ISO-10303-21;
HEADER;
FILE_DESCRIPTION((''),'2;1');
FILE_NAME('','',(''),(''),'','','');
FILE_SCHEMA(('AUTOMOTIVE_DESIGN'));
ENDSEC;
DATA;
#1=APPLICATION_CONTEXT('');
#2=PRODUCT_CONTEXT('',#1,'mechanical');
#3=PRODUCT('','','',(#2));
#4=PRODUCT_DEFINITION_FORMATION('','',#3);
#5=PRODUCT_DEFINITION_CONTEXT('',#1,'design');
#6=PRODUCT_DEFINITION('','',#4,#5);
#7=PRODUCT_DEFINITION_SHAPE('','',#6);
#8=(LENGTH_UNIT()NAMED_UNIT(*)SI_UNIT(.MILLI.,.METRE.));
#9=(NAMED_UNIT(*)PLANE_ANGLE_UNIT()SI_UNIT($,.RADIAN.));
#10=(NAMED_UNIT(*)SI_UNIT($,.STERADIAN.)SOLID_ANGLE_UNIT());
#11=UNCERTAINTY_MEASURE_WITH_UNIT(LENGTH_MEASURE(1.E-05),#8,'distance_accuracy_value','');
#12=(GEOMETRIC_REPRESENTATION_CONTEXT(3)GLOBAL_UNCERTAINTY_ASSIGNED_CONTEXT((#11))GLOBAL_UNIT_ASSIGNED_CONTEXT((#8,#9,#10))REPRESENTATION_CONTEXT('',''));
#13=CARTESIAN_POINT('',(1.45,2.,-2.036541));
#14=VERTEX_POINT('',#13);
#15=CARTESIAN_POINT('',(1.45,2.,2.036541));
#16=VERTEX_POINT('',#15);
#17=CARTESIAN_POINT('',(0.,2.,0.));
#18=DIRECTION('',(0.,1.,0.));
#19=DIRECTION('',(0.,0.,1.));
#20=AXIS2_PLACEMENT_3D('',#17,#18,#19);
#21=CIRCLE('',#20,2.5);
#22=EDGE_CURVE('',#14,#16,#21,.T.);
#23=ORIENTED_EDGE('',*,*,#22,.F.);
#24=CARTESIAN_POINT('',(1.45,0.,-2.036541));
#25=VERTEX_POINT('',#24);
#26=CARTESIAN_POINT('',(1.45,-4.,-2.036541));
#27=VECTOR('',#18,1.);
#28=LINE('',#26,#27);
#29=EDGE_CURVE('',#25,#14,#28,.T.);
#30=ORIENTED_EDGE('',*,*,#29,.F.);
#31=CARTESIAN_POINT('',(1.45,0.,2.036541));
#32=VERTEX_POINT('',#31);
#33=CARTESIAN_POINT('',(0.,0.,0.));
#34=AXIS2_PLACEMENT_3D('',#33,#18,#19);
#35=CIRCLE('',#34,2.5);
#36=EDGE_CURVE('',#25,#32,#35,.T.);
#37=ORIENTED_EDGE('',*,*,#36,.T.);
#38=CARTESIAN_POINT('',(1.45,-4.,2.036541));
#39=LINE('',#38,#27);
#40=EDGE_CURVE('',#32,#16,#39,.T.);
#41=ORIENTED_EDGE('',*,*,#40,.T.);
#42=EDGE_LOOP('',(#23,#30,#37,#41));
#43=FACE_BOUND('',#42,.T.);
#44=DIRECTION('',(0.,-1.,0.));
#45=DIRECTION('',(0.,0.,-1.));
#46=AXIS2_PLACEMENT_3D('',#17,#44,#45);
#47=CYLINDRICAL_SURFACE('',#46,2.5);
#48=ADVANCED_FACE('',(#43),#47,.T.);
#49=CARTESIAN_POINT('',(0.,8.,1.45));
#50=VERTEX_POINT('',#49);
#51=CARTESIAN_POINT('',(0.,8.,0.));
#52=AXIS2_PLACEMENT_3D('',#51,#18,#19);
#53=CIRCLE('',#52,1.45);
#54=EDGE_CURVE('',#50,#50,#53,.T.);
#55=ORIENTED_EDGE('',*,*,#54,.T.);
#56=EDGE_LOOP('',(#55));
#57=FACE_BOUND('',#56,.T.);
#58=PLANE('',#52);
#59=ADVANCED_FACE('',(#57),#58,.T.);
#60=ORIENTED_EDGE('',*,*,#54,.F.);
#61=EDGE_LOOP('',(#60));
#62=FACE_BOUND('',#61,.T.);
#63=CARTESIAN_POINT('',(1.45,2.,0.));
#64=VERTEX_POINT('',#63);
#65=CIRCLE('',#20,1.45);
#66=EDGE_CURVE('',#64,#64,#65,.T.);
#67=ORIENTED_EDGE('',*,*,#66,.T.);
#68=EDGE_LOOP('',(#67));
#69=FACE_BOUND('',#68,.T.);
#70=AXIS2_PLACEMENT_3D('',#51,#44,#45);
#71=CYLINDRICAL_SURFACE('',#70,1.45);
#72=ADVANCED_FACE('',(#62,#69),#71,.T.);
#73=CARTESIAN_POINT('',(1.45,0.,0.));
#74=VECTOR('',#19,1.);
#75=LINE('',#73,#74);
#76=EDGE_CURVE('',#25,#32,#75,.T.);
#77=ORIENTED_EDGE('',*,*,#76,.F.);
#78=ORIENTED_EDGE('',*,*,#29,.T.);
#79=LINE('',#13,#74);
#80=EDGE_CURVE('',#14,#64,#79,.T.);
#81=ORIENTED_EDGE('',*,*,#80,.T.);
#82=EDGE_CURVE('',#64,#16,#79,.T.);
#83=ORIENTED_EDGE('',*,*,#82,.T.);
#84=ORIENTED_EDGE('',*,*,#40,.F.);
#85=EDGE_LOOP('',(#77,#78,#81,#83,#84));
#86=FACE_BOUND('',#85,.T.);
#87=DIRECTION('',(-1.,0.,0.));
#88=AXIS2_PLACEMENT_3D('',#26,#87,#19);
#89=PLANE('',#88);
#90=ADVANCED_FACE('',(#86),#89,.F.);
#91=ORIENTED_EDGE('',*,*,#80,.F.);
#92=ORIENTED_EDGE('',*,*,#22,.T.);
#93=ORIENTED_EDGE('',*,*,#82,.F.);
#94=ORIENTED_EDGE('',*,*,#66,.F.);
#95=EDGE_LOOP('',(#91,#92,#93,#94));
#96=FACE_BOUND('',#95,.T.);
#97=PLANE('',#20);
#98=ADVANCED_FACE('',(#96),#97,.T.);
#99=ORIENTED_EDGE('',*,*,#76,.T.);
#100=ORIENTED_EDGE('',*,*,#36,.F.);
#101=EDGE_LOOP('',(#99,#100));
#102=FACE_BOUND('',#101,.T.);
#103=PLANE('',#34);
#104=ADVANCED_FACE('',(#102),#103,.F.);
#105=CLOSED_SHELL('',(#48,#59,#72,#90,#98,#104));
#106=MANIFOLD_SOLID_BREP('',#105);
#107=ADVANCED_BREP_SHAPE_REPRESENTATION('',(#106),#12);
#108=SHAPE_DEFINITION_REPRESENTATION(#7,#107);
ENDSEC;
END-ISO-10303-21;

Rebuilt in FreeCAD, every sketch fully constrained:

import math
import FreeCAD as App
import Part
import Sketcher
Q = App.Units.Quantity

doc = App.newDocument("Part")
body = doc.addObject("PartDesign::Body", "Body")

# Sketch on XZ plane
sketch1 = doc.addObject("Sketcher::SketchObject", "Sketch")
body.addObject(sketch1)
sketch1.AttachmentSupport = (doc.XZ_Plane, [""])
sketch1.MapMode = "FlatFace"
sketch1.addGeometry(Part.Circle(App.Vector(0, 0, 0), App.Vector(0, 0, 1), 2.5), False)
sketch1.addConstraint(Sketcher.Constraint("Coincident", 0, 3, -1, 1))
sketch1.addConstraint(Sketcher.Constraint("Diameter", 0, Q("5 mm")))
pad1 = doc.addObject("PartDesign::Pad", "Pad")
body.addObject(pad1)
pad1.Profile = sketch1
pad1.Length = 2
pad1.Reversed = True

# Sketch on XZ plane
sketch2 = doc.addObject("Sketcher::SketchObject", "Sketch001")
body.addObject(sketch2)
sketch2.AttachmentSupport = (doc.XZ_Plane, [""])
sketch2.MapMode = "FlatFace"
sketch2.AttachmentOffset = App.Placement(App.Vector(0, 0, -2), App.Rotation())
sketch2.addGeometry(Part.Circle(App.Vector(0, 0, 0), App.Vector(0, 0, 1), 1.45), False)
sketch2.addConstraint(Sketcher.Constraint("Coincident", 0, 3, -1, 1))
sketch2.addConstraint(Sketcher.Constraint("Diameter", 0, Q("2.9 mm")))
pad2 = doc.addObject("PartDesign::Pad", "Pad001")
body.addObject(pad2)
pad2.Profile = sketch2
pad2.Length = 6
pad2.Reversed = True

# Sketch on XZ plane
sketch3 = doc.addObject("Sketcher::SketchObject", "Sketch002")
body.addObject(sketch3)
sketch3.AttachmentSupport = (doc.XZ_Plane, [""])
sketch3.MapMode = "FlatFace"
sketch3.AttachmentOffset = App.Placement(App.Vector(0, 0, 4), App.Rotation())
sketch3.addGeometry(Part.LineSegment(App.Vector(1.45, -2.036541, 0), App.Vector(1.45, 2.036541, 0)), False)
sketch3.addGeometry(Part.ArcOfCircle(Part.Circle(App.Vector(0, 0, 0), App.Vector(0, 0, 1), 2.5), math.radians(-54.549457), math.radians(54.549457)), False)
sketch3.addConstraint(Sketcher.Constraint("Coincident", 0, 1, 1, 1))
sketch3.addConstraint(Sketcher.Constraint("Coincident", 1, 2, 0, 2))
sketch3.addConstraint(Sketcher.Constraint("Vertical", 0))
sketch3.addConstraint(Sketcher.Constraint("Coincident", 1, 3, -1, 1))
sketch3.addConstraint(Sketcher.Constraint("Radius", 1, Q("2.5 mm")))
sketch3.addConstraint(Sketcher.Constraint("DistanceX", -1, 1, 0, 1, Q("1.45 mm")))
pocket1 = doc.addObject("PartDesign::Pocket", "Pocket")
body.addObject(pocket1)
pocket1.Profile = sketch3
pocket1.Length = 6

doc.recompute()
